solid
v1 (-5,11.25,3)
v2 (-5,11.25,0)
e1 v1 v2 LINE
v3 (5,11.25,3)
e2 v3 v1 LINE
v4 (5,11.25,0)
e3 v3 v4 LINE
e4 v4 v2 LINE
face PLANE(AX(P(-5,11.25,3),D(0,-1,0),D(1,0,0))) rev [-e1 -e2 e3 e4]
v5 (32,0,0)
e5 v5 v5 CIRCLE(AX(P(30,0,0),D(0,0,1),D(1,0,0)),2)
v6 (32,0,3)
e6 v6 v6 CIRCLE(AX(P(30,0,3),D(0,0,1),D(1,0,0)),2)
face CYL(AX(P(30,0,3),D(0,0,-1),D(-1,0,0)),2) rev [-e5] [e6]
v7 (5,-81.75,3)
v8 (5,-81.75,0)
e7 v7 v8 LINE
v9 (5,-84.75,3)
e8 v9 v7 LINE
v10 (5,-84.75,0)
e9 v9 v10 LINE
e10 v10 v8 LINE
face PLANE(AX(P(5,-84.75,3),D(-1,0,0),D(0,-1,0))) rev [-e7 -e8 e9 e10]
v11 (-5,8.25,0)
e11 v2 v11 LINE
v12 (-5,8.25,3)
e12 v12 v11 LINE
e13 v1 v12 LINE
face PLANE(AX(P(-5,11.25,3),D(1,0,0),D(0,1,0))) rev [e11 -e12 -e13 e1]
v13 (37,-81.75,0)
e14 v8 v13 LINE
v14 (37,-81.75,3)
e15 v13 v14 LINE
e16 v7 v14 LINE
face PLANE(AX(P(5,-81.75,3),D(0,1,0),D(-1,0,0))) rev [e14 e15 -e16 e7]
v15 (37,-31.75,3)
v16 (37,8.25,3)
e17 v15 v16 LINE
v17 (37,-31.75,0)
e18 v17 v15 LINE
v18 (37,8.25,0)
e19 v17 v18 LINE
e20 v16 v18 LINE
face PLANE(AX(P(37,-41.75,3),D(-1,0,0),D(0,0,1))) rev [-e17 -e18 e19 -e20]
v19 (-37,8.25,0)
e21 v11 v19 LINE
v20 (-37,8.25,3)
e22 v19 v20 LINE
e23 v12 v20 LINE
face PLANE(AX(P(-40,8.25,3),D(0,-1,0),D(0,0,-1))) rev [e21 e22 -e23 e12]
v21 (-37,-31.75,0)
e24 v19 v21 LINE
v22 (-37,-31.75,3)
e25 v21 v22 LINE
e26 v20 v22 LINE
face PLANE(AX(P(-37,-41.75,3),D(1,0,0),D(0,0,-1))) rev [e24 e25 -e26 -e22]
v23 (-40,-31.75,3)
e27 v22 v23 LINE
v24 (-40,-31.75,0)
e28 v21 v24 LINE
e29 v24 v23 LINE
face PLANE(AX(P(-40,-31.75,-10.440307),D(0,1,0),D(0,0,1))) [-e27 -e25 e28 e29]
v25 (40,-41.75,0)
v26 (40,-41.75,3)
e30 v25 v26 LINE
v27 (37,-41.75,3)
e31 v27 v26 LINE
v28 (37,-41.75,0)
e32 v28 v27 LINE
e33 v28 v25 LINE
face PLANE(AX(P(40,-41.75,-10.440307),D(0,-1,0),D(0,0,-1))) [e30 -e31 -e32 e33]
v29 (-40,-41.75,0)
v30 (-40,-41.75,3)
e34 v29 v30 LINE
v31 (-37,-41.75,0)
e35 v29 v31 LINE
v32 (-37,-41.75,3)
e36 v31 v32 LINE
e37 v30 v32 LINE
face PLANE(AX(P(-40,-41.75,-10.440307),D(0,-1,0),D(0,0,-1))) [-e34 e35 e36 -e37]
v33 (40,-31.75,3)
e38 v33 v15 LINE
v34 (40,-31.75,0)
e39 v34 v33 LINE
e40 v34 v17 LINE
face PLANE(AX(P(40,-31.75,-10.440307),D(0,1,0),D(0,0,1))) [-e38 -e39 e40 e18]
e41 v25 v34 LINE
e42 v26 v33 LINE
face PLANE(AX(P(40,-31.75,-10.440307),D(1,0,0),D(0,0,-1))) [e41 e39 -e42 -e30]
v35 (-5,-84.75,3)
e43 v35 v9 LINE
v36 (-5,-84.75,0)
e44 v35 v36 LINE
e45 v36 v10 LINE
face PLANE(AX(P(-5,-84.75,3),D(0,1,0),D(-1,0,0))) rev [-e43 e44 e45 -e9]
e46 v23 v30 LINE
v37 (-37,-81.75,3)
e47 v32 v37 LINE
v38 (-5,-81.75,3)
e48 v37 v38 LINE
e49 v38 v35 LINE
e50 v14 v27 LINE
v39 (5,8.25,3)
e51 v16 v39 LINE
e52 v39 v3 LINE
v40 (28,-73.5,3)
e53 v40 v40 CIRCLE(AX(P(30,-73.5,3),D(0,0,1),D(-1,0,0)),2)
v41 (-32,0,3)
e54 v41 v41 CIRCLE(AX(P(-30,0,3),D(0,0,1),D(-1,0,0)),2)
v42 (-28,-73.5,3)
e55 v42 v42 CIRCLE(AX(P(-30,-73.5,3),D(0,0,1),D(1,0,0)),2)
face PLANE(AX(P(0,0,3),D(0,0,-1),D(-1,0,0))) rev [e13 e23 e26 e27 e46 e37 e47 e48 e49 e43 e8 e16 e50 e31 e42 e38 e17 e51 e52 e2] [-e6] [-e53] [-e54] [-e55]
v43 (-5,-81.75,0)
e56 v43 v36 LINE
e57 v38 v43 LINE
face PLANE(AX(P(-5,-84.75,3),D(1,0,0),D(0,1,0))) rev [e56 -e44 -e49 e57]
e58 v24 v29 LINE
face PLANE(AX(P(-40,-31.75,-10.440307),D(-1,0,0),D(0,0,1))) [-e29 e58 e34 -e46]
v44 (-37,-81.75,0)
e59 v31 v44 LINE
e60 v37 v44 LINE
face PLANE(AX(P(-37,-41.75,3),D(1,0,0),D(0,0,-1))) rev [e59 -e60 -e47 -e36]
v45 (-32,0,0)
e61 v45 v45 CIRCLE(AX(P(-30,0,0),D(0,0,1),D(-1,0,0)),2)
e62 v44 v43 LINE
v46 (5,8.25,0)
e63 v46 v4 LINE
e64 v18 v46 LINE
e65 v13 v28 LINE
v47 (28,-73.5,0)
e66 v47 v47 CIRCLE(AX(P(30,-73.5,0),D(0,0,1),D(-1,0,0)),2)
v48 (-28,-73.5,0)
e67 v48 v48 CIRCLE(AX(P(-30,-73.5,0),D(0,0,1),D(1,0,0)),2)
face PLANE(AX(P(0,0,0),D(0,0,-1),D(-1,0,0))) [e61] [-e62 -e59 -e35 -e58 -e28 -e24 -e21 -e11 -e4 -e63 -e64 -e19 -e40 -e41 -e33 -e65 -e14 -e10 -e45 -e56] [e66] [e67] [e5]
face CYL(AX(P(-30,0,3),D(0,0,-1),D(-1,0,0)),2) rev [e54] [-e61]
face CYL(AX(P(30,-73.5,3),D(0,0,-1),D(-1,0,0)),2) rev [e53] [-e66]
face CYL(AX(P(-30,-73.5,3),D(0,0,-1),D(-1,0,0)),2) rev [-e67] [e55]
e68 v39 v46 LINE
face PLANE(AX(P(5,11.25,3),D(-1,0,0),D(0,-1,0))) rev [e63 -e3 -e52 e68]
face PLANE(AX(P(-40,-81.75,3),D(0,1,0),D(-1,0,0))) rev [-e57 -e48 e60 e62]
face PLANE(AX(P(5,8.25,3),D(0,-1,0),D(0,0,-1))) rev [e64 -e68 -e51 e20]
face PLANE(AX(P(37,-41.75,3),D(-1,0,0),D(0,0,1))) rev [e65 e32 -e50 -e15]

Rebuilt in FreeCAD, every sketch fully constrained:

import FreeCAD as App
import Part
import Sketcher
from FreeCAD import Vector

doc = App.newDocument("Part")
body = doc.addObject("PartDesign::Body", "Body")

# Sketch on XY plane
sketch1 = body.newObject("Sketcher::SketchObject", "Sketch")
sketch1.AttachmentSupport = (doc.getObject("XY_Plane"), [""])
sketch1.MapMode = "FlatFace"
sketch1.addGeometry([
    Part.LineSegment(Vector(40, 8.2, 0), Vector(5, 8.2, 0)),  # 0
    Part.LineSegment(Vector(5, 8.2, 0), Vector(5, 11.2, 0)),  # 1
    Part.LineSegment(Vector(5, 11.2, 0), Vector(-5, 11.2, 0)),  # 2
    Part.LineSegment(Vector(-5, 11.2, 0), Vector(-5, 8.2, 0)),  # 3
    Part.LineSegment(Vector(-5, 8.2, 0), Vector(-40, 8.2, 0)),  # 4
    Part.LineSegment(Vector(-40, 8.2, 0), Vector(-40, -31.8, 0)),  # 5
    Part.LineSegment(Vector(-40, -31.8, 0), Vector(-37, -31.8, 0)),  # 6
    Part.LineSegment(Vector(-37, -31.8, 0), Vector(-37, -41.8, 0)),  # 7
    Part.LineSegment(Vector(-37, -41.8, 0), Vector(-40, -41.8, 0)),  # 8
    Part.LineSegment(Vector(-40, -41.8, 0), Vector(-40, -81.8, 0)),  # 9
    Part.LineSegment(Vector(-40, -81.8, 0), Vector(-5, -81.8, 0)),  # 10
    Part.LineSegment(Vector(-5, -81.8, 0), Vector(-5, -84.8, 0)),  # 11
    Part.LineSegment(Vector(-5, -84.8, 0), Vector(5, -84.8, 0)),  # 12
    Part.LineSegment(Vector(5, -84.8, 0), Vector(5, -81.8, 0)),  # 13
    Part.LineSegment(Vector(5, -81.8, 0), Vector(40, -81.8, 0)),  # 14
    Part.LineSegment(Vector(40, -81.8, 0), Vector(40, -41.8, 0)),  # 15
    Part.LineSegment(Vector(40, -41.8, 0), Vector(37, -41.8, 0)),  # 16
    Part.LineSegment(Vector(37, -41.8, 0), Vector(37, -31.8, 0)),  # 17
    Part.LineSegment(Vector(37, -31.8, 0), Vector(40, -31.8, 0)),  # 18
    Part.LineSegment(Vector(40, -31.8, 0), Vector(40, 8.2, 0)),  # 19
    Part.Circle(Vector(30, -73.5, 0), Vector(0, 0, 1), 2),  # 20
    Part.Circle(Vector(-30, -73.5, 0), Vector(0, 0, 1), 2),  # 21
    Part.Circle(Vector(30, 0, 0), Vector(0, 0, 1), 2),  # 22
    Part.Circle(Vector(-30, 0, 0), Vector(0, 0, 1), 2),  # 23
], False)
sketch1.addConstraint([
    Sketcher.Constraint("Coincident", 0, 2, 1, 1),
    Sketcher.Constraint("Coincident", 1, 2, 2, 1),
    Sketcher.Constraint("Coincident", 2, 2, 3, 1),
    Sketcher.Constraint("Coincident", 3, 2, 4, 1),
    Sketcher.Constraint("Coincident", 4, 2, 5, 1),
    Sketcher.Constraint("Coincident", 5, 2, 6, 1),
    Sketcher.Constraint("Coincident", 6, 2, 7, 1),
    Sketcher.Constraint("Coincident", 7, 2, 8, 1),
    Sketcher.Constraint("Coincident", 8, 2, 9, 1),
    Sketcher.Constraint("Coincident", 9, 2, 10, 1),
    Sketcher.Constraint("Coincident", 10, 2, 11, 1),
    Sketcher.Constraint("Coincident", 11, 2, 12, 1),
    Sketcher.Constraint("Coincident", 12, 2, 13, 1),
    Sketcher.Constraint("Coincident", 13, 2, 14, 1),
    Sketcher.Constraint("Coincident", 14, 2, 15, 1),
    Sketcher.Constraint("Coincident", 15, 2, 16, 1),
    Sketcher.Constraint("Coincident", 16, 2, 17, 1),
    Sketcher.Constraint("Coincident", 17, 2, 18, 1),
    Sketcher.Constraint("Coincident", 18, 2, 19, 1),
    Sketcher.Constraint("Coincident", 19, 2, 0, 1),
    Sketcher.Constraint("Horizontal", 0),
    Sketcher.Constraint("Vertical", 1),
    Sketcher.Constraint("Horizontal", 2),
    Sketcher.Constraint("Vertical", 3),
    Sketcher.Constraint("Horizontal", 4),
    Sketcher.Constraint("Vertical", 5),
    Sketcher.Constraint("Horizontal", 6),
    Sketcher.Constraint("Vertical", 7),
    Sketcher.Constraint("Horizontal", 8),
    Sketcher.Constraint("Vertical", 9),
    Sketcher.Constraint("Horizontal", 10),
    Sketcher.Constraint("Vertical", 11),
    Sketcher.Constraint("Horizontal", 12),
    Sketcher.Constraint("Vertical", 13),
    Sketcher.Constraint("Horizontal", 14),
    Sketcher.Constraint("Vertical", 15),
    Sketcher.Constraint("Horizontal", 16),
    Sketcher.Constraint("Vertical", 17),
    Sketcher.Constraint("Horizontal", 18),
    Sketcher.Constraint("Vertical", 19),
    Sketcher.Constraint("Equal", 20, 21),
    Sketcher.Constraint("Equal", 21, 22),
    Sketcher.Constraint("Equal", 22, 23),
    Sketcher.Constraint("Symmetric", 22, 3, 23, 3, -1, 1),
    Sketcher.Constraint("Symmetric", 20, 3, 21, 3, -2),
    Sketcher.Constraint("Symmetric", 0, 2, 3, 2, -2),
    Sketcher.Constraint("Symmetric", 10, 2, 13, 2, -2),
    Sketcher.Constraint("Symmetric", 8, 2, 15, 2, -2),
    Sketcher.Constraint("Symmetric", 6, 2, 17, 2, -2),
    Sketcher.Constraint("PointOnObject", 22, 3, -1),
    Sketcher.Constraint("Vertical", 20, 3, 22, 3),
    Sketcher.Constraint("Vertical", 5, 2, 8, 2),
    Sketcher.Constraint("Vertical", 3, 2, 10, 2),
    Sketcher.Constraint("Vertical", 15, 2, 18, 2),
    Sketcher.Constraint("Equal", 18, 1),
    Sketcher.Constraint("Equal", 12, 7),
    Sketcher.Constraint("Equal", 5, 9),
    Sketcher.Constraint("Equal", 3, 11),
    Sketcher.Constraint("Diameter", 20, 4.0),
    Sketcher.Constraint("DistanceX", 0, 2, 0, 1, 35.0),
    Sketcher.Constraint("DistanceX", 2, 2, 2, 1, 10.0),
    Sketcher.Constraint("DistanceX", 6, 1, 6, 2, 3.0),
    Sketcher.Constraint("DistanceY", 5, 2, 5, 1, 40.0),
    Sketcher.Constraint("DistanceX", -1, 1, 20, 3, 30.0),
    Sketcher.Constraint("DistanceY", 20, 3, -1, 1, 73.5),
    Sketcher.Constraint("DistanceY", -1, 1, 0, 2, 8.25),
])
pad1 = body.newObject("PartDesign::Pad", "Pad")
pad1.Profile = sketch1
pad1.Length = 3

# Sketch on XY plane
sketch2 = body.newObject("Sketcher::SketchObject", "Sketch001")
sketch2.AttachmentSupport = (doc.getObject("XY_Plane"), [""])
sketch2.MapMode = "FlatFace"
sketch2.AttachmentOffset = App.Placement(Vector(0, 0, 3), App.Rotation())
sketch2.addGeometry([
    Part.LineSegment(Vector(37, 11.2, 0), Vector(37, -84.8, 0)),  # 0
    Part.LineSegment(Vector(37, -84.8, 0), Vector(40, -84.8, 0)),  # 1
    Part.LineSegment(Vector(40, -84.8, 0), Vector(40, 11.2, 0)),  # 2
    Part.LineSegment(Vector(40, 11.2, 0), Vector(37, 11.2, 0)),  # 3
    Part.LineSegment(Vector(-40, 11.2, 0), Vector(-40, -84.8, 0)),  # 4
    Part.LineSegment(Vector(-40, -84.8, 0), Vector(-37, -84.8, 0)),  # 5
    Part.LineSegment(Vector(-37, -84.8, 0), Vector(-37, 11.2, 0)),  # 6
    Part.LineSegment(Vector(-37, 11.2, 0), Vector(-40, 11.2, 0)),  # 7
], False)
sketch2.addConstraint([
    Sketcher.Constraint("Coincident", 0, 2, 1, 1),
    Sketcher.Constraint("Coincident", 1, 2, 2, 1),
    Sketcher.Constraint("Coincident", 2, 2, 3, 1),
    Sketcher.Constraint("Coincident", 3, 2, 0, 1),
    Sketcher.Constraint("Coincident", 4, 2, 5, 1),
    Sketcher.Constraint("Coincident", 5, 2, 6, 1),
    Sketcher.Constraint("Coincident", 6, 2, 7, 1),
    Sketcher.Constraint("Coincident", 7, 2, 4, 1),
    Sketcher.Constraint("Vertical", 0),
    Sketcher.Constraint("Horizontal", 1),
    Sketcher.Constraint("Vertical", 2),
    Sketcher.Constraint("Horizontal", 3),
    Sketcher.Constraint("Vertical", 4),
    Sketcher.Constraint("Horizontal", 5),
    Sketcher.Constraint("Vertical", 6),
    Sketcher.Constraint("Horizontal", 7),
    Sketcher.Constraint("Symmetric", 1, 2, 4, 2, -2),
    Sketcher.Constraint("Symmetric", 3, 2, 6, 2, -2),
    Sketcher.Constraint("DistanceX", 1, 1, 1, 2, 3.0),
    Sketcher.Constraint("DistanceY", 0, 2, 0, 1, 96.0),
    Sketcher.Constraint("DistanceX", -1, 1, 0, 2, 37.0),
    Sketcher.Constraint("DistanceY", 0, 2, -1, 1, 84.75),
])
pocket1 = body.newObject("PartDesign::Pocket", "Pocket")
pocket1.Profile = sketch2
pocket1.Length = 10

# Sketch on XY plane
sketch3 = body.newObject("Sketcher::SketchObject", "Sketch002")
sketch3.AttachmentSupport = (doc.getObject("XY_Plane"), [""])
sketch3.MapMode = "FlatFace"
sketch3.AttachmentOffset = App.Placement(Vector(0, 0, 3), App.Rotation())
sketch3.addGeometry([
    Part.LineSegment(Vector(37, -31.8, 0), Vector(37, -41.8, 0)),  # 0
    Part.LineSegment(Vector(37, -41.8, 0), Vector(40, -41.8, 0)),  # 1
    Part.LineSegment(Vector(40, -41.8, 0), Vector(40, -31.8, 0)),  # 2
    Part.LineSegment(Vector(40, -31.8, 0), Vector(37, -31.8, 0)),  # 3
    Part.LineSegment(Vector(-40, -31.8, 0), Vector(-40, -41.8, 0)),  # 4
    Part.LineSegment(Vector(-40, -41.8, 0), Vector(-37, -41.8, 0)),  # 5
    Part.LineSegment(Vector(-37, -41.8, 0), Vector(-37, -31.8, 0)),  # 6
    Part.LineSegment(Vector(-37, -31.8, 0), Vector(-40, -31.8, 0)),  # 7
], False)
sketch3.addConstraint([
    Sketcher.Constraint("Coincident", 0, 2, 1, 1),
    Sketcher.Constraint("Coincident", 1, 2, 2, 1),
    Sketcher.Constraint("Coincident", 2, 2, 3, 1),
    Sketcher.Constraint("Coincident", 3, 2, 0, 1),
    Sketcher.Constraint("Coincident", 4, 2, 5, 1),
    Sketcher.Constraint("Coincident", 5, 2, 6, 1),
    Sketcher.Constraint("Coincident", 6, 2, 7, 1),
    Sketcher.Constraint("Coincident", 7, 2, 4, 1),
    Sketcher.Constraint("Vertical", 0),
    Sketcher.Constraint("Horizontal", 1),
    Sketcher.Constraint("Vertical", 2),
    Sketcher.Constraint("Horizontal", 3),
    Sketcher.Constraint("Vertical", 4),
    Sketcher.Constraint("Horizontal", 5),
    Sketcher.Constraint("Vertical", 6),
    Sketcher.Constraint("Horizontal", 7),
    Sketcher.Constraint("Symmetric", 1, 2, 4, 2, -2),
    Sketcher.Constraint("Symmetric", 3, 2, 6, 2, -2),
    Sketcher.Constraint("DistanceX", 1, 1, 1, 2, 3.0),
    Sketcher.Constraint("DistanceY", 0, 2, 0, 1, 10.0),
    Sketcher.Constraint("DistanceX", -1, 1, 0, 2, 37.0),
    Sketcher.Constraint("DistanceY", 0, 2, -1, 1, 41.75),
])
pad2 = body.newObject("PartDesign::Pad", "Pad001")
pad2.Profile = sketch3
pad2.Length = 3
pad2.Reversed = True

doc.recompute()
